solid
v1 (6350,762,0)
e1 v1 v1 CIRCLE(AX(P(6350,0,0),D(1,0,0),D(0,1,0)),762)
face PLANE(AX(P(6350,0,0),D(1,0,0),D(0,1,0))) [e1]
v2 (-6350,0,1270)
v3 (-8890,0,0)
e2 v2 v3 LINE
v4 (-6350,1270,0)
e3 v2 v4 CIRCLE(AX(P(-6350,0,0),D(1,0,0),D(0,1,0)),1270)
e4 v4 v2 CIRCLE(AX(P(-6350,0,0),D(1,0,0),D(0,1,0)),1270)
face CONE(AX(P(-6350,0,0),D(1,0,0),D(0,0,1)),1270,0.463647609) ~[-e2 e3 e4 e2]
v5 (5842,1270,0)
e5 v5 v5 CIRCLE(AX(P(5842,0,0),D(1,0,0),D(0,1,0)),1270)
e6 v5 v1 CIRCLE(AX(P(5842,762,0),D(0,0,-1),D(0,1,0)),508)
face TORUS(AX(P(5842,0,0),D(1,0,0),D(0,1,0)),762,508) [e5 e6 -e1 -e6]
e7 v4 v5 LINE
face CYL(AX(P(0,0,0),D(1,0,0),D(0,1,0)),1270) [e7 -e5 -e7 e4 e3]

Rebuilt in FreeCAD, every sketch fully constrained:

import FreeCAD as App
import Part
import Sketcher
from FreeCAD import Vector
Q = App.Units.Quantity


def edges_at(feature, points):
    """Names of the edges that pass closest to the given points."""
    edges = feature.Shape.Edges
    near = lambda p: min(range(len(edges)), key=lambda i: edges[i].distToShape(Part.Vertex(*p))[0])
    return sorted({f"Edge{near(p) + 1}" for p in points})

doc = App.newDocument("Part")
body = doc.addObject("PartDesign::Body", "Body")

# Sketch on YZ plane
sketch1 = body.newObject("Sketcher::SketchObject", "Sketch")
sketch1.AttachmentSupport = (doc.getObject("YZ_Plane"), [""])
sketch1.MapMode = "FlatFace"
sketch1.addGeometry(Part.Circle(Vector(0, 0, 0), Vector(0, 0, 1), 1270), False)
sketch1.addConstraint([
    Sketcher.Constraint("Coincident", 0, 3, -1, 1),
    Sketcher.Constraint("Diameter", 0, Q("100 in")),
])
pad1 = body.newObject("PartDesign::Pad", "Pad")
pad1.Profile = sketch1
pad1.Length = Q("500 in")
pad1.Midplane = True
doc.recompute()

fillet = body.newObject("PartDesign::Fillet", "Fillet")
fillet.Base = (pad1, edges_at(pad1, [(6350, -1270, 0)]))
fillet.Radius = Q("20 in")

# Sketch on XZ plane
sketch2 = body.newObject("Sketcher::SketchObject", "Sketch001")
sketch2.AttachmentSupport = (doc.getObject("XZ_Plane"), [""])
sketch2.MapMode = "FlatFace"
sketch2.addGeometry([
    Part.LineSegment(Vector(-6350, 0, 0), Vector(-6350, 1270, 0)),
    Part.LineSegment(Vector(-6350, 1270, 0), Vector(-8890, 0, 0)),
    Part.LineSegment(Vector(-8890, 0, 0), Vector(-6350, 0, 0)),
], False)
sketch2.addConstraint([
    Sketcher.Constraint("Coincident", 0, 2, 1, 1),
    Sketcher.Constraint("Coincident", 1, 2, 2, 1),
    Sketcher.Constraint("Coincident", 2, 2, 0, 1),
    Sketcher.Constraint("Vertical", 0),
    Sketcher.Constraint("Horizontal", 2),
    Sketcher.Constraint("PointOnObject", 1, 2, -1),
    Sketcher.Constraint("DistanceX", 2, 1, 2, 2, Q("100 in")),
    Sketcher.Constraint("DistanceY", 0, 1, 0, 2, Q("50 in")),
    Sketcher.Constraint("DistanceX", 0, 2, -1, 1, Q("250 in")),
])
revolution = body.newObject("PartDesign::Revolution", "Revolution")
revolution.Profile = sketch2
revolution.ReferenceAxis = (sketch2, ["H_Axis"])
revolution.Angle = 360

doc.recompute()
